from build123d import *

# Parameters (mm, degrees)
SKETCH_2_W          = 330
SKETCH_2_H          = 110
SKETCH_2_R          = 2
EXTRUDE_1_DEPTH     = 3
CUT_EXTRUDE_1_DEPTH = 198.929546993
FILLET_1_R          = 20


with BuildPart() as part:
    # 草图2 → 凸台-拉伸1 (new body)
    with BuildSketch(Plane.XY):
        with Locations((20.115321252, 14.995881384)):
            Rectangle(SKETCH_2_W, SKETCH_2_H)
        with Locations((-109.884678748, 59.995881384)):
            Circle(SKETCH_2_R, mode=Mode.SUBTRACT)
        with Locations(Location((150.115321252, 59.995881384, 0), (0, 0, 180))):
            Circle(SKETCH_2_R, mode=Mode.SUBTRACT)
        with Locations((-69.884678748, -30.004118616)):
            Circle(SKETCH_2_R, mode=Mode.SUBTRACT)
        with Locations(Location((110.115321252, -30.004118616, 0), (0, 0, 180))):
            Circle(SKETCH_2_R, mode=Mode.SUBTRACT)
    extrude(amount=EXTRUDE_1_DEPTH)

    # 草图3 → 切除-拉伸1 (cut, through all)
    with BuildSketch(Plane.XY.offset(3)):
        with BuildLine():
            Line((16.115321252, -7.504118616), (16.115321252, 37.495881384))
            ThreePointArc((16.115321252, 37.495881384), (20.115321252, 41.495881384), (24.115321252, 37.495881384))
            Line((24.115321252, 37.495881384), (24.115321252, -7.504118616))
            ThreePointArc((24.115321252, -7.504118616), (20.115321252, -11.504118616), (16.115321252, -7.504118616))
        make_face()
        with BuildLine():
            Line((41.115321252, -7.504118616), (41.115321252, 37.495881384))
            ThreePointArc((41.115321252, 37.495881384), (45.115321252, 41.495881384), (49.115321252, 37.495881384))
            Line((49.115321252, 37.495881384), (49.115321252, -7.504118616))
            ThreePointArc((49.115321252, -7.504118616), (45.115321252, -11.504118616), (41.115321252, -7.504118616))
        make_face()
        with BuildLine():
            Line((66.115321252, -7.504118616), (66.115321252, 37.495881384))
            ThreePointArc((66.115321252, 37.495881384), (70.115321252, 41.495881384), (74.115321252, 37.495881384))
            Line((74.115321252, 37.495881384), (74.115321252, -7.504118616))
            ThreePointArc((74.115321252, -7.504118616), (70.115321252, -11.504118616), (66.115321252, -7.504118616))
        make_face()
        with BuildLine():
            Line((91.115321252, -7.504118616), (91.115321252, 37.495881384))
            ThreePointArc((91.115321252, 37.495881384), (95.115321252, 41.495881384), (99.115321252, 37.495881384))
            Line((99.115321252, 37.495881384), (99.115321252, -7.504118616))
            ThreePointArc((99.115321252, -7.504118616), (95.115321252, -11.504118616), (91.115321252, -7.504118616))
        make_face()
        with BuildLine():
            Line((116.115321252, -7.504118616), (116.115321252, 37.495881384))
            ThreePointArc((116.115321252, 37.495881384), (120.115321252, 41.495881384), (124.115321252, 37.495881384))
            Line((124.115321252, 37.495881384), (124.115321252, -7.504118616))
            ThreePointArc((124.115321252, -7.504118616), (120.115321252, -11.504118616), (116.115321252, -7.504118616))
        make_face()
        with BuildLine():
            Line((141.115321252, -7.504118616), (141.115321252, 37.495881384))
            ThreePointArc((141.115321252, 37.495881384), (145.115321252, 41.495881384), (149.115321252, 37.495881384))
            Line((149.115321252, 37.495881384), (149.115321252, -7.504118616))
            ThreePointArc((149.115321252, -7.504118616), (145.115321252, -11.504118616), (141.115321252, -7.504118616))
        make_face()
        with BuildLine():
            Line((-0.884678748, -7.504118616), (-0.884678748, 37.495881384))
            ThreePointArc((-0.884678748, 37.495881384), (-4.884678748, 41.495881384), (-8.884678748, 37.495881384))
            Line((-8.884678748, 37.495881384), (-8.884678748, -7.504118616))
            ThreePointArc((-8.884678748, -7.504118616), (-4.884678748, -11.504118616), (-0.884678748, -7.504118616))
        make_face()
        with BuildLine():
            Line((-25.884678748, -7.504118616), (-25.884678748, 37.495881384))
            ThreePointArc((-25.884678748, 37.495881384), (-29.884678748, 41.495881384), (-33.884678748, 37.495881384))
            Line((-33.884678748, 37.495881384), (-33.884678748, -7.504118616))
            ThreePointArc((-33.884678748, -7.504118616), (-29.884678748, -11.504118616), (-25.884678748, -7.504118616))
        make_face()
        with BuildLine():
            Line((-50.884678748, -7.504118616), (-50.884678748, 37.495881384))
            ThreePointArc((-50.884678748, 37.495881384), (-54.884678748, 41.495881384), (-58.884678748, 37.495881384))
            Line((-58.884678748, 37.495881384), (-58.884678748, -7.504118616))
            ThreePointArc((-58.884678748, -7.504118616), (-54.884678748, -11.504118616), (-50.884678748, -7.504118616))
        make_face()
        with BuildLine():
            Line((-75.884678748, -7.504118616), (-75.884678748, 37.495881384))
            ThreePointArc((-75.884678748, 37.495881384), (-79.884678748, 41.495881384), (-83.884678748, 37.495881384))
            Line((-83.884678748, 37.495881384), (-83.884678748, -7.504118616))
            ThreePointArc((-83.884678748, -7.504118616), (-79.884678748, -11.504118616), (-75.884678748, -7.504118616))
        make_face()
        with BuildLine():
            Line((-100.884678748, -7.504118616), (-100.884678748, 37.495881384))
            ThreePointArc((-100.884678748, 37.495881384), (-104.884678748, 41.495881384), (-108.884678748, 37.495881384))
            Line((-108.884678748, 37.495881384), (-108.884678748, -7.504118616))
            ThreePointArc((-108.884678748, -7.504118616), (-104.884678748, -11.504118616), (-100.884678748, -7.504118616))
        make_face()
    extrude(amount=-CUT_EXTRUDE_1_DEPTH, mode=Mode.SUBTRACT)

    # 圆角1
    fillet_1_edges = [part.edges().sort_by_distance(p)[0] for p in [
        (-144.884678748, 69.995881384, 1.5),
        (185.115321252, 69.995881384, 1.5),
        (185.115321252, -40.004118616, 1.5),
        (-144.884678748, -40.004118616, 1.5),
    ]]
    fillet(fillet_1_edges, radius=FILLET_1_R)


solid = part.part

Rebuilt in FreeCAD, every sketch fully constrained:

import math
import FreeCAD as App
import Part
import Sketcher
from FreeCAD import Vector


def edges_at(feature, points):
    """Names of the edges that pass closest to the given points."""
    edges = feature.Shape.Edges
    near = lambda p: min(range(len(edges)), key=lambda i: edges[i].distToShape(Part.Vertex(*p))[0])
    return sorted({f"Edge{near(p) + 1}" for p in points})


def add_polygon(sketch, points):
    """Adds a closed chain of lines whose ends are joined by coincident constraints."""
    first, n = sketch.GeometryCount, len(points)
    for a, b in zip(points, points[1:] + points[:1]):
        sketch.addGeometry(Part.LineSegment(App.Vector(*a, 0), App.Vector(*b, 0)), False)
    for i in range(n):
        sketch.addConstraint(Sketcher.Constraint("Coincident", first + i, 2, first + (i + 1) % n, 1))

doc = App.newDocument("Part")
body = doc.addObject("PartDesign::Body", "Body")

# Sketch on XY plane
sketch1 = doc.addObject("Sketcher::SketchObject", "Sketch")
body.addObject(sketch1)
sketch1.AttachmentSupport = (doc.XY_Plane, [""])
sketch1.MapMode = "FlatFace"
add_polygon(sketch1, [(-144.9, 70), (-144.9, -40), (185.1, -40), (185.1, 70)])  # lines 0-3
sketch1.addGeometry(Part.Circle(Vector(-69.9, -30, 0), Vector(0, 0, 1), 2), False)  # 4
sketch1.addGeometry(Part.Circle(Vector(110.1, -30, 0), Vector(0, 0, 1), 2), False)  # 5
sketch1.addGeometry(Part.Circle(Vector(-109.9, 60, 0), Vector(0, 0, 1), 2), False)  # 6
sketch1.addGeometry(Part.Circle(Vector(150.1, 60, 0), Vector(0, 0, 1), 2), False)  # 7
sketch1.addConstraint([
    Sketcher.Constraint("Vertical", 0),
    Sketcher.Constraint("Horizontal", 1),
    Sketcher.Constraint("Vertical", 2),
    Sketcher.Constraint("Horizontal", 3),
    Sketcher.Constraint("Equal", 4, 5),
    Sketcher.Constraint("Equal", 5, 6),
    Sketcher.Constraint("Equal", 6, 7),
    Sketcher.Constraint("Horizontal", 4, 3, 5, 3),
    Sketcher.Constraint("Horizontal", 6, 3, 7, 3),
    Sketcher.Constraint("Diameter", 4, 4.0),
    Sketcher.Constraint("DistanceX", 1, 1, 1, 2, 330.0),
    Sketcher.Constraint("DistanceY", 0, 2, 0, 1, 110.0),
    Sketcher.Constraint("DistanceX", 4, 3, 5, 3, 180.0),
    Sketcher.Constraint("DistanceX", 6, 3, 4, 3, 40.0),
    Sketcher.Constraint("DistanceY", 4, 3, 6, 3, 90.0),
    Sketcher.Constraint("DistanceX", 5, 3, 7, 3, 40.0),
    Sketcher.Constraint("DistanceX", 0, 2, 4, 3, 75.0),
    Sketcher.Constraint("DistanceY", 0, 2, 4, 3, 10.0),
    Sketcher.Constraint("DistanceX", 4, 3, -1, 1, 69.884679),
    Sketcher.Constraint("DistanceY", 4, 3, -1, 1, 30.004119),
])
pad1 = doc.addObject("PartDesign::Pad", "Pad")
body.addObject(pad1)
pad1.Profile = sketch1
pad1.Length = 3

# Sketch on XY plane
sketch2 = doc.addObject("Sketcher::SketchObject", "Sketch001")
body.addObject(sketch2)
sketch2.AttachmentSupport = (doc.XY_Plane, [""])
sketch2.MapMode = "FlatFace"
sketch2.AttachmentOffset = App.Placement(Vector(0, 0, 3), App.Rotation())
sketch2.addGeometry([
    Part.LineSegment(Vector(16.1, 37.5, 0), Vector(16.1, -7.5, 0)),  # 0
    Part.ArcOfCircle(Part.Circle(Vector(20.1, -7.5, 0), Vector(0, 0, 1), 4), math.radians(180), math.radians(360)),  # 1
    Part.LineSegment(Vector(24.1, -7.5, 0), Vector(24.1, 37.5, 0)),  # 2
    Part.ArcOfCircle(Part.Circle(Vector(20.1, 37.5, 0), Vector(0, 0, 1), 4), math.radians(0), math.radians(180)),  # 3
    Part.LineSegment(Vector(41.1, 37.5, 0), Vector(41.1, -7.5, 0)),  # 4
    Part.ArcOfCircle(Part.Circle(Vector(45.1, -7.5, 0), Vector(0, 0, 1), 4), math.radians(180), math.radians(360)),  # 5
    Part.LineSegment(Vector(49.1, -7.5, 0), Vector(49.1, 37.5, 0)),  # 6
    Part.ArcOfCircle(Part.Circle(Vector(45.1, 37.5, 0), Vector(0, 0, 1), 4), math.radians(0), math.radians(180)),  # 7
    Part.LineSegment(Vector(66.1, 37.5, 0), Vector(66.1, -7.5, 0)),  # 8
    Part.ArcOfCircle(Part.Circle(Vector(70.1, -7.5, 0), Vector(0, 0, 1), 4), math.radians(180), math.radians(360)),  # 9
    Part.LineSegment(Vector(74.1, -7.5, 0), Vector(74.1, 37.5, 0)),  # 10
    Part.ArcOfCircle(Part.Circle(Vector(70.1, 37.5, 0), Vector(0, 0, 1), 4), math.radians(0), math.radians(180)),  # 11
    Part.LineSegment(Vector(91.1, 37.5, 0), Vector(91.1, -7.5, 0)),  # 12
    Part.ArcOfCircle(Part.Circle(Vector(95.1, -7.5, 0), Vector(0, 0, 1), 4), math.radians(180), math.radians(360)),  # 13
    Part.LineSegment(Vector(99.1, -7.5, 0), Vector(99.1, 37.5, 0)),  # 14
    Part.ArcOfCircle(Part.Circle(Vector(95.1, 37.5, 0), Vector(0, 0, 1), 4), math.radians(0), math.radians(180)),  # 15
    Part.LineSegment(Vector(116.1, 37.5, 0), Vector(116.1, -7.5, 0)),  # 16
    Part.ArcOfCircle(Part.Circle(Vector(120.1, -7.5, 0), Vector(0, 0, 1), 4), math.radians(180), math.radians(360)),  # 17
    Part.LineSegment(Vector(124.1, -7.5, 0), Vector(124.1, 37.5, 0)),  # 18
    Part.ArcOfCircle(Part.Circle(Vector(120.1, 37.5, 0), Vector(0, 0, 1), 4), math.radians(0), math.radians(180)),  # 19
    Part.LineSegment(Vector(141.1, 37.5, 0), Vector(141.1, -7.5, 0)),  # 20
    Part.ArcOfCircle(Part.Circle(Vector(145.1, -7.5, 0), Vector(0, 0, 1), 4), math.radians(180), math.radians(360)),  # 21
    Part.LineSegment(Vector(149.1, -7.5, 0), Vector(149.1, 37.5, 0)),  # 22
    Part.ArcOfCircle(Part.Circle(Vector(145.1, 37.5, 0), Vector(0, 0, 1), 4), math.radians(0), math.radians(180)),  # 23
    Part.LineSegment(Vector(-0.9, -7.5, 0), Vector(-0.9, 37.5, 0)),  # 24
    Part.ArcOfCircle(Part.Circle(Vector(-4.9, 37.5, 0), Vector(0, 0, 1), 4), math.radians(0), math.radians(180)),  # 25
    Part.LineSegment(Vector(-8.9, 37.5, 0), Vector(-8.9, -7.5, 0)),  # 26
    Part.ArcOfCircle(Part.Circle(Vector(-4.9, -7.5, 0), Vector(0, 0, 1), 4), math.radians(180), math.radians(360)),  # 27
    Part.LineSegment(Vector(-25.9, -7.5, 0), Vector(-25.9, 37.5, 0)),  # 28
    Part.ArcOfCircle(Part.Circle(Vector(-29.9, 37.5, 0), Vector(0, 0, 1), 4), math.radians(0), math.radians(180)),  # 29
    Part.LineSegment(Vector(-33.9, 37.5, 0), Vector(-33.9, -7.5, 0)),  # 30
    Part.ArcOfCircle(Part.Circle(Vector(-29.9, -7.5, 0), Vector(0, 0, 1), 4), math.radians(180), math.radians(360)),  # 31
    Part.LineSegment(Vector(-50.9, -7.5, 0), Vector(-50.9, 37.5, 0)),  # 32
    Part.ArcOfCircle(Part.Circle(Vector(-54.9, 37.5, 0), Vector(0, 0, 1), 4), math.radians(0), math.radians(180)),  # 33
    Part.LineSegment(Vector(-58.9, 37.5, 0), Vector(-58.9, -7.5, 0)),  # 34
    Part.ArcOfCircle(Part.Circle(Vector(-54.9, -7.5, 0), Vector(0, 0, 1), 4), math.radians(180), math.radians(360)),  # 35
    Part.LineSegment(Vector(-75.9, -7.5, 0), Vector(-75.9, 37.5, 0)),  # 36
    Part.ArcOfCircle(Part.Circle(Vector(-79.9, 37.5, 0), Vector(0, 0, 1), 4), math.radians(0), math.radians(180)),  # 37
    Part.LineSegment(Vector(-83.9, 37.5, 0), Vector(-83.9, -7.5, 0)),  # 38
    Part.ArcOfCircle(Part.Circle(Vector(-79.9, -7.5, 0), Vector(0, 0, 1), 4), math.radians(180), math.radians(360)),  # 39
    Part.LineSegment(Vector(-100.9, -7.5, 0), Vector(-100.9, 37.5, 0)),  # 40
    Part.ArcOfCircle(Part.Circle(Vector(-104.9, 37.5, 0), Vector(0, 0, 1), 4), math.radians(0), math.radians(180)),  # 41
    Part.LineSegment(Vector(-108.9, 37.5, 0), Vector(-108.9, -7.5, 0)),  # 42
    Part.ArcOfCircle(Part.Circle(Vector(-104.9, -7.5, 0), Vector(0, 0, 1), 4), math.radians(180), math.radians(360)),  # 43
], False)
sketch2.addConstraint([
    Sketcher.Constraint("Tangent", 0, 2, 1, 1),
    Sketcher.Constraint("Tangent", 1, 2, 2, 1),
    Sketcher.Constraint("Tangent", 2, 2, 3, 1),
    Sketcher.Constraint("Tangent", 3, 2, 0, 1),
    Sketcher.Constraint("Tangent", 4, 2, 5, 1),
    Sketcher.Constraint("Tangent", 5, 2, 6, 1),
    Sketcher.Constraint("Tangent", 6, 2, 7, 1),
    Sketcher.Constraint("Tangent", 7, 2, 4, 1),
    Sketcher.Constraint("Tangent", 8, 2, 9, 1),
    Sketcher.Constraint("Tangent", 9, 2, 10, 1),
    Sketcher.Constraint("Tangent", 10, 2, 11, 1),
    Sketcher.Constraint("Tangent", 11, 2, 8, 1),
    Sketcher.Constraint("Tangent", 12, 2, 13, 1),
    Sketcher.Constraint("Tangent", 13, 2, 14, 1),
    Sketcher.Constraint("Tangent", 14, 2, 15, 1),
    Sketcher.Constraint("Tangent", 15, 2, 12, 1),
    Sketcher.Constraint("Tangent", 16, 2, 17, 1),
    Sketcher.Constraint("Tangent", 17, 2, 18, 1),
    Sketcher.Constraint("Tangent", 18, 2, 19, 1),
    Sketcher.Constraint("Tangent", 19, 2, 16, 1),
    Sketcher.Constraint("Tangent", 20, 2, 21, 1),
    Sketcher.Constraint("Tangent", 21, 2, 22, 1),
    Sketcher.Constraint("Tangent", 22, 2, 23, 1),
    Sketcher.Constraint("Tangent", 23, 2, 20, 1),
    Sketcher.Constraint("Tangent", 24, 2, 25, 1),
    Sketcher.Constraint("Tangent", 25, 2, 26, 1),
    Sketcher.Constraint("Tangent", 26, 2, 27, 1),
    Sketcher.Constraint("Tangent", 27, 2, 24, 1),
    Sketcher.Constraint("Tangent", 28, 2, 29, 1),
    Sketcher.Constraint("Tangent", 29, 2, 30, 1),
    Sketcher.Constraint("Tangent", 30, 2, 31, 1),
    Sketcher.Constraint("Tangent", 31, 2, 28, 1),
    Sketcher.Constraint("Tangent", 32, 2, 33, 1),
    Sketcher.Constraint("Tangent", 33, 2, 34, 1),
    Sketcher.Constraint("Tangent", 34, 2, 35, 1),
    Sketcher.Constraint("Tangent", 35, 2, 32, 1),
    Sketcher.Constraint("Tangent", 36, 2, 37, 1),
    Sketcher.Constraint("Tangent", 37, 2, 38, 1),
    Sketcher.Constraint("Tangent", 38, 2, 39, 1),
    Sketcher.Constraint("Tangent", 39, 2, 36, 1),
    Sketcher.Constraint("Tangent", 40, 2, 41, 1),
    Sketcher.Constraint("Tangent", 41, 2, 42, 1),
    Sketcher.Constraint("Tangent", 42, 2, 43, 1),
    Sketcher.Constraint("Tangent", 43, 2, 40, 1),
    Sketcher.Constraint("Vertical", 0),
    Sketcher.Constraint("Vertical", 2),
    Sketcher.Constraint("Vertical", 4),
    Sketcher.Constraint("Vertical", 6),
    Sketcher.Constraint("Vertical", 8),
    Sketcher.Constraint("Vertical", 10),
    Sketcher.Constraint("Vertical", 12),
    Sketcher.Constraint("Vertical", 14),
    Sketcher.Constraint("Vertical", 16),
    Sketcher.Constraint("Vertical", 18),
    Sketcher.Constraint("Vertical", 20),
    Sketcher.Constraint("Vertical", 22),
    Sketcher.Constraint("Vertical", 24),
    Sketcher.Constraint("Vertical", 26),
    Sketcher.Constraint("Vertical", 28),
    Sketcher.Constraint("Vertical", 30),
    Sketcher.Constraint("Vertical", 32),
    Sketcher.Constraint("Vertical", 34),
    Sketcher.Constraint("Vertical", 36),
    Sketcher.Constraint("Vertical", 38),
    Sketcher.Constraint("Vertical", 40),
    Sketcher.Constraint("Vertical", 42),
    Sketcher.Constraint("Equal", 3, 5),
    Sketcher.Constraint("Equal", 7, 9),
    Sketcher.Constraint("Equal", 11, 13),
    Sketcher.Constraint("Equal", 15, 17),
    Sketcher.Constraint("Equal", 19, 21),
    Sketcher.Constraint("Equal", 23, 25),
    Sketcher.Constraint("Equal", 27, 29),
    Sketcher.Constraint("Equal", 31, 33),
    Sketcher.Constraint("Equal", 35, 37),
    Sketcher.Constraint("Equal", 39, 41),
    Sketcher.Constraint("Horizontal", 1, 3, 5, 3),
    Sketcher.Constraint("Horizontal", 3, 3, 7, 3),
    Sketcher.Constraint("Horizontal", 5, 3, 9, 3),
    Sketcher.Constraint("Horizontal", 7, 3, 11, 3),
    Sketcher.Constraint("Horizontal", 9, 3, 13, 3),
    Sketcher.Constraint("Horizontal", 11, 3, 15, 3),
    Sketcher.Constraint("Horizontal", 13, 3, 17, 3),
    Sketcher.Constraint("Horizontal", 15, 3, 19, 3),
    Sketcher.Constraint("Horizontal", 17, 3, 21, 3),
    Sketcher.Constraint("Horizontal", 19, 3, 23, 3),
    Sketcher.Constraint("Horizontal", 23, 3, 25, 3),
    Sketcher.Constraint("Horizontal", 21, 3, 27, 3),
    Sketcher.Constraint("Horizontal", 25, 3, 29, 3),
    Sketcher.Constraint("Horizontal", 27, 3, 31, 3),
    Sketcher.Constraint("Horizontal", 29, 3, 33, 3),
    Sketcher.Constraint("Horizontal", 31, 3, 35, 3),
    Sketcher.Constraint("Horizontal", 33, 3, 37, 3),
    Sketcher.Constraint("Horizontal", 35, 3, 39, 3),
    Sketcher.Constraint("Horizontal", 37, 3, 41, 3),
    Sketcher.Constraint("Horizontal", 39, 3, 43, 3),
    Sketcher.Constraint("Radius", 1, 4.0),
    Sketcher.Constraint("DistanceY", 0, 2, 0, 1, 45.0),
    Sketcher.Constraint("DistanceX", -1, 1, 1, 3, 20.115321),
    Sketcher.Constraint("DistanceY", 1, 3, -1, 1, 7.504119),
    Sketcher.Constraint("DistanceX", -1, 1, 5, 3, 45.115321),
    Sketcher.Constraint("DistanceX", -1, 1, 9, 3, 70.115321),
    Sketcher.Constraint("DistanceX", -1, 1, 13, 3, 95.115321),
    Sketcher.Constraint("DistanceX", -1, 1, 17, 3, 120.115321),
    Sketcher.Constraint("DistanceX", -1, 1, 21, 3, 145.115321),
    Sketcher.Constraint("DistanceX", 25, 3, -1, 1, 4.884679),
    Sketcher.Constraint("DistanceX", 29, 3, -1, 1, 29.884679),
    Sketcher.Constraint("DistanceX", 33, 3, -1, 1, 54.884679),
    Sketcher.Constraint("DistanceX", 37, 3, -1, 1, 79.884679),
    Sketcher.Constraint("DistanceX", 41, 3, -1, 1, 104.884679),
])
pocket1 = doc.addObject("PartDesign::Pocket", "Pocket")
body.addObject(pocket1)
pocket1.Profile = sketch2
pocket1.Type = "ThroughAll"
doc.recompute()

fillet = doc.addObject("PartDesign::Fillet", "Fillet")
body.addObject(fillet)
fillet.Base = (pocket1, edges_at(pocket1, [
    (-144.885, 69.996, 1.5),
    (185.115, 69.996, 1.5),
    (185.115, -40.004, 1.5),
    (-144.885, -40.004, 1.5),
]))
fillet.Radius = 20

doc.recompute()
